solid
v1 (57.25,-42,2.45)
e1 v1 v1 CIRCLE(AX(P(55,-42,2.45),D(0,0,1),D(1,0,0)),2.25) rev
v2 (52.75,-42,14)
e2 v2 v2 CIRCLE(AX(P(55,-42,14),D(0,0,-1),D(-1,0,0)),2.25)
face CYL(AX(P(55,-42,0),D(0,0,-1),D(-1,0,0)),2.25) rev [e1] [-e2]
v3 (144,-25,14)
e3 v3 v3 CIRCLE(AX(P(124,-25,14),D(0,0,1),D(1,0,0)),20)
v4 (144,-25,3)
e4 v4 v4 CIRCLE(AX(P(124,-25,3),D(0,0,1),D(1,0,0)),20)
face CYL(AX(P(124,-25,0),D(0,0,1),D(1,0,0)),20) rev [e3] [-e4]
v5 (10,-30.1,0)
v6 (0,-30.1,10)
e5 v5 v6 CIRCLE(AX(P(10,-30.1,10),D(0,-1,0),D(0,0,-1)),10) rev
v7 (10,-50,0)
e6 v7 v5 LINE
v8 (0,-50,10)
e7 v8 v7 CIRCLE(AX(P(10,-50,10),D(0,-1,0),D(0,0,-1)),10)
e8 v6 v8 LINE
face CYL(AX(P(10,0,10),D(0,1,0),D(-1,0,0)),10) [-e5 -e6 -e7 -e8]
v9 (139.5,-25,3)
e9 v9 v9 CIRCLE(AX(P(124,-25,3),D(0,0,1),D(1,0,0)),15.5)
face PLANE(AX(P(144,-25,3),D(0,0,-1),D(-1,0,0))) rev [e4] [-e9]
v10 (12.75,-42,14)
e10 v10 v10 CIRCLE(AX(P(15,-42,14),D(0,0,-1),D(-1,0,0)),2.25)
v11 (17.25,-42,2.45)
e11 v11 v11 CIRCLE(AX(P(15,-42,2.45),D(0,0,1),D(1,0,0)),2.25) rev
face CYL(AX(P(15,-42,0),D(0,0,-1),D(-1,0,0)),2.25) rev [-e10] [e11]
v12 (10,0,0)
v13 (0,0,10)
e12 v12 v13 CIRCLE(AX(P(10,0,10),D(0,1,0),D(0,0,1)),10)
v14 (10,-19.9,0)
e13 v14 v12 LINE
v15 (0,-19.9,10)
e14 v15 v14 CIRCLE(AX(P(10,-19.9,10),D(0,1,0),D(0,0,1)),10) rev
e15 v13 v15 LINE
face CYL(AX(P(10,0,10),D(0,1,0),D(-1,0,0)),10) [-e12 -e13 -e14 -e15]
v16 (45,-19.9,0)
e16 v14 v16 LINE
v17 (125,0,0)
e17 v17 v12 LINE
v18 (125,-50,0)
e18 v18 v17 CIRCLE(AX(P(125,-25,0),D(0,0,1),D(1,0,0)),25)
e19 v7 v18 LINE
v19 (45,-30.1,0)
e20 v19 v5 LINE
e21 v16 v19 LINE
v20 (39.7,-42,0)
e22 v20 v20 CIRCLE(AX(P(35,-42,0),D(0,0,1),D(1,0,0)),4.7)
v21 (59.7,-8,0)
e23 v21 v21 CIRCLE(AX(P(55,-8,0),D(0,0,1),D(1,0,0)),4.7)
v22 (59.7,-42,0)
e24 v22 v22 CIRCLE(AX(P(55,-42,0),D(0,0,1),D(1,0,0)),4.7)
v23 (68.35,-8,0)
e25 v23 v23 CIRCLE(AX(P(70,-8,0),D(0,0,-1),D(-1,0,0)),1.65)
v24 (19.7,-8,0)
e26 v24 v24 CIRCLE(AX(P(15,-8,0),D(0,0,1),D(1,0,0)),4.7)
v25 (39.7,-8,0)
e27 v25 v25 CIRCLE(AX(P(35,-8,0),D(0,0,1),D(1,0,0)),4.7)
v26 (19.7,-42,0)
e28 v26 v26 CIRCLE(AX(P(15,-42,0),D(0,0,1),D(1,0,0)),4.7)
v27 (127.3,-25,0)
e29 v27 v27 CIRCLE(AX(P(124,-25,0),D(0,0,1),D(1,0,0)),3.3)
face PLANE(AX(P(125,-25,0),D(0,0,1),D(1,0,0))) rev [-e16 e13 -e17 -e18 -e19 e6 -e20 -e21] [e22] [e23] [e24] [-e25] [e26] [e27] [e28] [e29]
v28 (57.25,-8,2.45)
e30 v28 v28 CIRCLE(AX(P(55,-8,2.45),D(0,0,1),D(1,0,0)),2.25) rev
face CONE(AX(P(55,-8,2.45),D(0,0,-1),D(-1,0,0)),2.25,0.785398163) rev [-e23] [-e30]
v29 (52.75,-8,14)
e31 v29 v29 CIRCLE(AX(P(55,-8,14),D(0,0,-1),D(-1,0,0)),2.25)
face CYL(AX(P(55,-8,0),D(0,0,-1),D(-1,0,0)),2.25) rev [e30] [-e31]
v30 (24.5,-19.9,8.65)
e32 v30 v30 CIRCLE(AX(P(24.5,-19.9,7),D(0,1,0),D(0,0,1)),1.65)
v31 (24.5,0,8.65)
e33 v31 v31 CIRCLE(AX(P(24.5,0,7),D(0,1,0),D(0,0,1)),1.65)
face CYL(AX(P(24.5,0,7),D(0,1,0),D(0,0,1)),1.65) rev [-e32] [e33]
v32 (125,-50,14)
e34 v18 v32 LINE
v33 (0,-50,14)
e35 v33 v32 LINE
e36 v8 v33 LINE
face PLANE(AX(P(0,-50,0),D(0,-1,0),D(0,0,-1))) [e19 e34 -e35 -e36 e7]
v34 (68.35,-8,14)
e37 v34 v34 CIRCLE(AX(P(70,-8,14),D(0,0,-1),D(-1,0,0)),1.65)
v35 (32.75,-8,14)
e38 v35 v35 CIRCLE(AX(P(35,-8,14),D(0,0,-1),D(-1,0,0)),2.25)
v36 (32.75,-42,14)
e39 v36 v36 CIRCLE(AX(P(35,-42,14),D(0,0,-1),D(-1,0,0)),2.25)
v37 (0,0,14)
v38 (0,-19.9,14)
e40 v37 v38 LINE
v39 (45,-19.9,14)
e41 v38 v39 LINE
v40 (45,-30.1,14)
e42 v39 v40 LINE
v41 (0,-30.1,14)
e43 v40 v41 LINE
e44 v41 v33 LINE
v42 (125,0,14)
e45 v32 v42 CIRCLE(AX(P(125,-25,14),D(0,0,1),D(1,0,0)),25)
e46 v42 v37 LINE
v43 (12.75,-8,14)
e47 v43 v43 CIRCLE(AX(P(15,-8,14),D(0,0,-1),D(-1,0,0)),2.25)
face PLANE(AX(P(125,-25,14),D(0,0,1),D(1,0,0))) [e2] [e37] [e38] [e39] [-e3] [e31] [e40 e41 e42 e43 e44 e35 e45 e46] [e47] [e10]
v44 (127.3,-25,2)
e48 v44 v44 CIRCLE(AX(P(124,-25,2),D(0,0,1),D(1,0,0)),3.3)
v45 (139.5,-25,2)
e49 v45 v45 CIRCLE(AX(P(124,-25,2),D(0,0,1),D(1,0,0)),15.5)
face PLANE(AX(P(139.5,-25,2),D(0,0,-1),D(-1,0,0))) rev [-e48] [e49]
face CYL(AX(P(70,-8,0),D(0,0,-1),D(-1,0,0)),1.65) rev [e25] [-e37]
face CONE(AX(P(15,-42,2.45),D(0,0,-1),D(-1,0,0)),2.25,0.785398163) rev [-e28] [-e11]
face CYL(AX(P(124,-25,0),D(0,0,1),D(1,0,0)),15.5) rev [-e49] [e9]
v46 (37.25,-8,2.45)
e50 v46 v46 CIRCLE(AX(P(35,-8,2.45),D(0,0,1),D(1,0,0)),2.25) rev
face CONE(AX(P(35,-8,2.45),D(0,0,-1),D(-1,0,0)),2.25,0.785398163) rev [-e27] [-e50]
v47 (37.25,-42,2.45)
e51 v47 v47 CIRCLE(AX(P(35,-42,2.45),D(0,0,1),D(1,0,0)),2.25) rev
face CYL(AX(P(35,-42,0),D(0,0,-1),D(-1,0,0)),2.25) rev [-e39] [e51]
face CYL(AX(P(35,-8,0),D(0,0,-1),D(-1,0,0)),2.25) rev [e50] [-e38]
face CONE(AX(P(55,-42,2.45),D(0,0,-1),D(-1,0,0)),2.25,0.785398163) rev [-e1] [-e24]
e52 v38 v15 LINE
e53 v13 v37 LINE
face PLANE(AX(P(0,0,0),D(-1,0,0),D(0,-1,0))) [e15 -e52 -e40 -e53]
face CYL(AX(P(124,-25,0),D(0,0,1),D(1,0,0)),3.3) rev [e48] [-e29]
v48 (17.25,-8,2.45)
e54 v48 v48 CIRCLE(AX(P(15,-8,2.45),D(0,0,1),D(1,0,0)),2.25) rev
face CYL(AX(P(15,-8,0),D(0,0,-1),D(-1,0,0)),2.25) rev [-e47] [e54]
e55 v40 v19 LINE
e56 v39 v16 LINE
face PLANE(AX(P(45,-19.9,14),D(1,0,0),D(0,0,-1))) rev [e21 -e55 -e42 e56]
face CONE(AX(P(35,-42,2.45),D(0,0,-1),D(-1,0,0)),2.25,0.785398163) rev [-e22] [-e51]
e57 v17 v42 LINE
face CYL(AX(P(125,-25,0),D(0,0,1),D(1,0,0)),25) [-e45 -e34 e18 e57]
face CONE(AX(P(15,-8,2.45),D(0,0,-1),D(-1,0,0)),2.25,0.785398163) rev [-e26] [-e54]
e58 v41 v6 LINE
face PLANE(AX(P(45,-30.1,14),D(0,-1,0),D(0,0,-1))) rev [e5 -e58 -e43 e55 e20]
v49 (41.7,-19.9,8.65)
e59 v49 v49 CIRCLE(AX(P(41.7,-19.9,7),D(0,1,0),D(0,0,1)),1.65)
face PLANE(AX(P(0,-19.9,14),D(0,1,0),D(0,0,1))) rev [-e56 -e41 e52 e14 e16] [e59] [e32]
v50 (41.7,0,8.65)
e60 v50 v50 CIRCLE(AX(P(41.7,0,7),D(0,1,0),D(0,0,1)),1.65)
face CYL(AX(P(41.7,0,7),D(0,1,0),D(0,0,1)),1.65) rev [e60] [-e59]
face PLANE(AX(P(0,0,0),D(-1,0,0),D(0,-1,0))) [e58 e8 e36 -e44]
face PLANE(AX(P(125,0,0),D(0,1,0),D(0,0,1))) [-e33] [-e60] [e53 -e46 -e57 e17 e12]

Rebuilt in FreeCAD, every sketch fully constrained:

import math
import FreeCAD as App
import Part
import Sketcher
Q = App.Units.Quantity


def edges_at(feature, points):
    """Names of the edges that pass closest to the given points."""
    edges = feature.Shape.Edges
    near = lambda p: min(range(len(edges)), key=lambda i: edges[i].distToShape(Part.Vertex(*p))[0])
    return sorted({f"Edge{near(p) + 1}" for p in points})


def add_polygon(sketch, points):
    """Adds a closed chain of lines whose ends are joined by coincident constraints."""
    first, n = sketch.GeometryCount, len(points)
    for a, b in zip(points, points[1:] + points[:1]):
        sketch.addGeometry(Part.LineSegment(App.Vector(*a, 0), App.Vector(*b, 0)), False)
    for i in range(n):
        sketch.addConstraint(Sketcher.Constraint("Coincident", first + i, 2, first + (i + 1) % n, 1))

doc = App.newDocument("Part")
body = doc.addObject("PartDesign::Body", "Body")

sketch1 = doc.addObject("Sketcher::SketchObject", "Sketch")
body.addObject(sketch1)
sketch1.AttachmentSupport = (doc.XY_Plane, [""])
sketch1.MapMode = "FlatFace"
sketch1.AttachmentOffset = App.Placement(App.Vector(0, 0, 14), App.Rotation())
sketch1.addGeometry(Part.LineSegment(App.Vector(125, 0, 0), App.Vector(0, 0, 0)), False)
sketch1.addGeometry(Part.LineSegment(App.Vector(0, 0, 0), App.Vector(0, -50, 0)), False)
sketch1.addGeometry(Part.LineSegment(App.Vector(0, -50, 0), App.Vector(125, -50, 0)), False)
sketch1.addGeometry(Part.ArcOfCircle(Part.Circle(App.Vector(125, -25, 0), App.Vector(0, 0, 1), 25), math.radians(-90), math.radians(90)), False)
sketch1.addConstraint(Sketcher.Constraint("Coincident", 0, 2, 1, 1))
sketch1.addConstraint(Sketcher.Constraint("Coincident", 1, 2, 2, 1))
sketch1.addConstraint(Sketcher.Constraint("Tangent", 2, 2, 3, 1))
sketch1.addConstraint(Sketcher.Constraint("Tangent", 3, 2, 0, 1))
sketch1.addConstraint(Sketcher.Constraint("Horizontal", 0))
sketch1.addConstraint(Sketcher.Constraint("Vertical", 1))
sketch1.addConstraint(Sketcher.Constraint("Horizontal", 2))
sketch1.addConstraint(Sketcher.Constraint("Coincident", 0, 2, -1, 1))
sketch1.addConstraint(Sketcher.Constraint("Radius", 3, Q("25 mm")))
sketch1.addConstraint(Sketcher.Constraint("DistanceX", 0, 2, 0, 1, Q("125 mm")))
pad1 = doc.addObject("PartDesign::Pad", "Pad")
body.addObject(pad1)
pad1.Profile = sketch1
pad1.Length = 14
pad1.Reversed = True

sketch2 = doc.addObject("Sketcher::SketchObject", "Sketch001")
body.addObject(sketch2)
sketch2.AttachmentSupport = (doc.XY_Plane, [""])
sketch2.MapMode = "FlatFace"
add_polygon(sketch2, [(45, -19.9), (45, -30.1), (0, -30.1), (0, -19.9)])
sketch2.addConstraint(Sketcher.Constraint("Vertical", 0))
sketch2.addConstraint(Sketcher.Constraint("Horizontal", 1))
sketch2.addConstraint(Sketcher.Constraint("Vertical", 2))
sketch2.addConstraint(Sketcher.Constraint("Horizontal", 3))
sketch2.addConstraint(Sketcher.Constraint("PointOnObject", 1, 2, -2))
sketch2.addConstraint(Sketcher.Constraint("DistanceX", 1, 2, 1, 1, Q("45 mm")))
sketch2.addConstraint(Sketcher.Constraint("DistanceY", 0, 2, 0, 1, Q("10.2 mm")))
sketch2.addConstraint(Sketcher.Constraint("DistanceY", 0, 2, -1, 1, Q("30.1 mm")))
pocket1 = doc.addObject("PartDesign::Pocket", "Pocket")
body.addObject(pocket1)
pocket1.Profile = sketch2
pocket1.Type = "ThroughAll"
pocket1.Reversed = True

sketch3 = doc.addObject("Sketcher::SketchObject", "Sketch002")
body.addObject(sketch3)
sketch3.AttachmentSupport = (doc.XZ_Plane, [""])
sketch3.MapMode = "FlatFace"
sketch3.AttachmentOffset = App.Placement(App.Vector(0, 0, 25), App.Rotation())
add_polygon(sketch3, [(127.3, 0), (124, 0), (124, 14), (144, 14), (144, 3), (139.5, 3), (139.5, 2), (127.3, 2)])
sketch3.addGeometry(Part.LineSegment(App.Vector(124, 0, 0), App.Vector(124, 14, 0)), True)
sketch3.addConstraint(Sketcher.Constraint("Horizontal", 0))
sketch3.addConstraint(Sketcher.Constraint("Vertical", 1))
sketch3.addConstraint(Sketcher.Constraint("Horizontal", 2))
sketch3.addConstraint(Sketcher.Constraint("Vertical", 3))
sketch3.addConstraint(Sketcher.Constraint("Horizontal", 4))
sketch3.addConstraint(Sketcher.Constraint("Vertical", 5))
sketch3.addConstraint(Sketcher.Constraint("Horizontal", 6))
sketch3.addConstraint(Sketcher.Constraint("Vertical", 7))
sketch3.addConstraint(Sketcher.Constraint("Vertical", 8))
sketch3.addConstraint(Sketcher.Constraint("Coincident", 8, 1, 0, 2))
sketch3.addConstraint(Sketcher.Constraint("PointOnObject", 0, 2, -1))
sketch3.addConstraint(Sketcher.Constraint("Horizontal", 2, 2, 8, 2))
sketch3.addConstraint(Sketcher.Constraint("DistanceX", 2, 1, 2, 2, Q("20 mm")))
sketch3.addConstraint(Sketcher.Constraint("DistanceY", 1, 1, 1, 2, Q("14 mm")))
sketch3.addConstraint(Sketcher.Constraint("DistanceY", 3, 2, 3, 1, Q("11 mm")))
sketch3.addConstraint(Sketcher.Constraint("DistanceY", 5, 2, 5, 1, Q("1 mm")))
sketch3.addConstraint(Sketcher.Constraint("DistanceX", 0, 2, 0, 1, Q("3.3 mm")))
sketch3.addConstraint(Sketcher.Constraint("DistanceX", 4, 2, 4, 1, Q("4.5 mm")))
sketch3.addConstraint(Sketcher.Constraint("DistanceX", -1, 1, 0, 2, Q("124 mm")))
groove = doc.addObject("PartDesign::Groove", "Groove")
body.addObject(groove)
groove.Profile = sketch3
groove.ReferenceAxis = (sketch3, ["Axis0"])
groove.Angle = 360

sketch4 = doc.addObject("Sketcher::SketchObject", "Sketch003")
body.addObject(sketch4)
sketch4.AttachmentSupport = (doc.XY_Plane, [""])
sketch4.MapMode = "FlatFace"
sketch4.addGeometry(Part.Circle(App.Vector(70, -8, 0), App.Vector(0, 0, 1), 1.65), False)
sketch4.addConstraint(Sketcher.Constraint("Diameter", 0, Q("3.3 mm")))
sketch4.addConstraint(Sketcher.Constraint("DistanceX", -1, 1, 0, 3, Q("70 mm")))
sketch4.addConstraint(Sketcher.Constraint("DistanceY", 0, 3, -1, 1, Q("8 mm")))
doc.recompute()
hole = doc.addObject("PartDesign::Hole", "Hole")
body.addObject(hole)
hole.Profile = sketch4
hole.ThreadType = "None"
hole.Diameter = 3.3
hole.DepthType = "Dimension"
hole.Depth = 14
hole.DrillPoint = "Flat"
hole.Reversed = True

sketch5 = doc.addObject("Sketcher::SketchObject", "Sketch004")
body.addObject(sketch5)
sketch5.AttachmentSupport = (doc.XZ_Plane, [""])
sketch5.MapMode = "FlatFace"
sketch5.addGeometry(Part.Circle(App.Vector(24.5, 7, 0), App.Vector(0, 0, 1), 1.65), False)
sketch5.addGeometry(Part.Circle(App.Vector(41.7, 7, 0), App.Vector(0, 0, 1), 1.65), False)
sketch5.addConstraint(Sketcher.Constraint("Equal", 0, 1))
sketch5.addConstraint(Sketcher.Constraint("Horizontal", 0, 3, 1, 3))
sketch5.addConstraint(Sketcher.Constraint("Diameter", 0, Q("3.3 mm")))
sketch5.addConstraint(Sketcher.Constraint("DistanceY", -1, 1, 0, 3, Q("7 mm")))
sketch5.addConstraint(Sketcher.Constraint("DistanceX", -1, 1, 0, 3, Q("24.5 mm")))
sketch5.addConstraint(Sketcher.Constraint("DistanceX", -1, 1, 1, 3, Q("41.7 mm")))
doc.recompute()
hole2 = doc.addObject("PartDesign::Hole", "Hole001")
body.addObject(hole2)
hole2.Profile = sketch5
hole2.ThreadType = "None"
hole2.Diameter = 3.3
hole2.DepthType = "Dimension"
hole2.Depth = 19.9
hole2.DrillPoint = "Flat"
hole2.Reversed = True

sketch6 = doc.addObject("Sketcher::SketchObject", "Sketch005")
body.addObject(sketch6)
sketch6.AttachmentSupport = (doc.XY_Plane, [""])
sketch6.MapMode = "FlatFace"
sketch6.addGeometry(Part.Circle(App.Vector(15, -8, 0), App.Vector(0, 0, 1), 2.25), False)
sketch6.addGeometry(Part.Circle(App.Vector(15, -42, 0), App.Vector(0, 0, 1), 2.25), False)
sketch6.addGeometry(Part.Circle(App.Vector(35, -42, 0), App.Vector(0, 0, 1), 2.25), False)
sketch6.addGeometry(Part.Circle(App.Vector(35, -8, 0), App.Vector(0, 0, 1), 2.25), False)
sketch6.addGeometry(Part.Circle(App.Vector(55, -8, 0), App.Vector(0, 0, 1), 2.25), False)
sketch6.addGeometry(Part.Circle(App.Vector(55, -42, 0), App.Vector(0, 0, 1), 2.25), False)
sketch6.addConstraint(Sketcher.Constraint("Equal", 0, 1))
sketch6.addConstraint(Sketcher.Constraint("Equal", 1, 2))
sketch6.addConstraint(Sketcher.Constraint("Equal", 2, 3))
sketch6.addConstraint(Sketcher.Constraint("Equal", 3, 4))
sketch6.addConstraint(Sketcher.Constraint("Equal", 4, 5))
sketch6.addConstraint(Sketcher.Constraint("Horizontal", 1, 3, 2, 3))
sketch6.addConstraint(Sketcher.Constraint("Horizontal", 0, 3, 3, 3))
sketch6.addConstraint(Sketcher.Constraint("Horizontal", 3, 3, 4, 3))
sketch6.addConstraint(Sketcher.Constraint("Horizontal", 2, 3, 5, 3))
sketch6.addConstraint(Sketcher.Constraint("Vertical", 0, 3, 1, 3))
sketch6.addConstraint(Sketcher.Constraint("Vertical", 2, 3, 3, 3))
sketch6.addConstraint(Sketcher.Constraint("Vertical", 4, 3, 5, 3))
sketch6.addConstraint(Sketcher.Constraint("Diameter", 0, Q("4.5 mm")))
sketch6.addConstraint(Sketcher.Constraint("DistanceX", -1, 1, 0, 3, Q("15 mm")))
sketch6.addConstraint(Sketcher.Constraint("DistanceY", 0, 3, -1, 1, Q("8 mm")))
sketch6.addConstraint(Sketcher.Constraint("DistanceY", 1, 3, -1, 1, Q("42 mm")))
sketch6.addConstraint(Sketcher.Constraint("DistanceX", -1, 1, 2, 3, Q("35 mm")))
sketch6.addConstraint(Sketcher.Constraint("DistanceX", -1, 1, 4, 3, Q("55 mm")))
doc.recompute()
hole3 = doc.addObject("PartDesign::Hole", "Hole002")
body.addObject(hole3)
hole3.Profile = sketch6
hole3.ThreadType = "None"
hole3.Diameter = 4.5
hole3.DepthType = "Dimension"
hole3.Depth = 14
hole3.DrillPoint = "Flat"
hole3.Reversed = True
doc.recompute()

chamfer = doc.addObject("PartDesign::Chamfer", "Chamfer")
body.addObject(chamfer)
chamfer.Base = (hole3, edges_at(hole3, [
    (52.75, -42, 0),
    (52.75, -8, 0),
    (32.75, -8, 0),
    (32.75, -42, 0),
    (12.75, -42, 0),
    (12.75, -8, 0),
]))
chamfer.Size = 2.45
doc.recompute()

fillet = doc.addObject("PartDesign::Fillet", "Fillet")
body.addObject(fillet)
fillet.Base = (chamfer, edges_at(chamfer, [(0, -9.95, 0), (0, -40.05, 0)]))
fillet.Radius = 10

doc.recompute()
